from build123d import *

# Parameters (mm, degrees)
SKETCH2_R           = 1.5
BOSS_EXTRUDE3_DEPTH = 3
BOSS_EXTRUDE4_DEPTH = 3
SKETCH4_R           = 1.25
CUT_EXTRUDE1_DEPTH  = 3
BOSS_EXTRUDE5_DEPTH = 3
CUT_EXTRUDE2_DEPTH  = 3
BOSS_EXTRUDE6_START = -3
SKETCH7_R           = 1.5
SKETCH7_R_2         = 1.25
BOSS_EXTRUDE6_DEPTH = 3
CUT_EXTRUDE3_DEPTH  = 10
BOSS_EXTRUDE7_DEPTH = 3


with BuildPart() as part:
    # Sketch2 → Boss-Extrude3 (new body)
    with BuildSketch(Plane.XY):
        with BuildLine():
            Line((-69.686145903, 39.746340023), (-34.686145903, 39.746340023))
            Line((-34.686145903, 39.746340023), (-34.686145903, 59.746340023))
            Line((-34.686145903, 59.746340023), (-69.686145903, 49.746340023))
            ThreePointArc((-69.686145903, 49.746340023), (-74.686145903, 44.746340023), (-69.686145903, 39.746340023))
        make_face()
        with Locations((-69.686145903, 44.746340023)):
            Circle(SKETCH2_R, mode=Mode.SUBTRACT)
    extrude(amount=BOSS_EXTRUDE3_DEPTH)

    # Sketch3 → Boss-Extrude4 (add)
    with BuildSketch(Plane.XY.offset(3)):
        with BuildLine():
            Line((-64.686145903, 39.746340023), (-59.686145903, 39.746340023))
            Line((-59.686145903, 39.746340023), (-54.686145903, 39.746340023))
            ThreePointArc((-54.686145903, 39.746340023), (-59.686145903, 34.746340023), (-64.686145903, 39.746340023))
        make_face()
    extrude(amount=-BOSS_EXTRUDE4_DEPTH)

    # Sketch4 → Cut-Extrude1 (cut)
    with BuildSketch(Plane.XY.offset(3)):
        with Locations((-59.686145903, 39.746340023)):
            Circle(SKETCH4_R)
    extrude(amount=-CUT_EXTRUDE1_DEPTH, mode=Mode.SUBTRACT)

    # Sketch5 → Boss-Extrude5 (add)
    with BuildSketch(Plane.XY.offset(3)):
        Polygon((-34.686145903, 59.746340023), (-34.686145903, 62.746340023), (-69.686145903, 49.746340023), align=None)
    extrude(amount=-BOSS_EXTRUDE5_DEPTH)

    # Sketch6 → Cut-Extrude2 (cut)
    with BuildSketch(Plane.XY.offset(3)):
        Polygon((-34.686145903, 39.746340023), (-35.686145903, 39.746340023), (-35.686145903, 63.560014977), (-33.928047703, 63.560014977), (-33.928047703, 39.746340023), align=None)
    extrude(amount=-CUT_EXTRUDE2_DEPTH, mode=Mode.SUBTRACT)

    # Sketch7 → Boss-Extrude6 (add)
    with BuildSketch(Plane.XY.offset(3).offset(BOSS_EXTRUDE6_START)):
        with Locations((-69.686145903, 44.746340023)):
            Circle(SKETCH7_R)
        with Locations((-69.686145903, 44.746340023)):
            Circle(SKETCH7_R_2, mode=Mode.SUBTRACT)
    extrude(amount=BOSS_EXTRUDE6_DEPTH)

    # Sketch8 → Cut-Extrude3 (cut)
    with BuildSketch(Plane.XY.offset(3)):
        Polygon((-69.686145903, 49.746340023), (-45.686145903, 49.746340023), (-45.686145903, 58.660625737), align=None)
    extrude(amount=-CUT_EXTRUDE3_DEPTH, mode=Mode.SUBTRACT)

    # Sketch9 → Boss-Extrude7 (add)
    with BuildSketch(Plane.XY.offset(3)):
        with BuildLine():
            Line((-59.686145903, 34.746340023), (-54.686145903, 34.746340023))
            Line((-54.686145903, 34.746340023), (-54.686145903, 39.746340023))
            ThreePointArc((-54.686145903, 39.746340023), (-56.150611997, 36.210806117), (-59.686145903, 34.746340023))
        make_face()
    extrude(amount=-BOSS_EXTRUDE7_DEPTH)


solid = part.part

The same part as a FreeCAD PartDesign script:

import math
import FreeCAD as App
import Part
import Sketcher

V = App.Vector


def add_polygon(sketch, points):
    """Adds a closed chain of lines whose ends are joined by coincident constraints."""
    first, n = sketch.GeometryCount, len(points)
    for a, b in zip(points, points[1:] + points[:1]):
        sketch.addGeometry(Part.LineSegment(App.Vector(*a, 0), App.Vector(*b, 0)), False)
    for i in range(n):
        sketch.addConstraint(Sketcher.Constraint("Coincident", first + i, 2, first + (i + 1) % n, 1))

doc = App.newDocument("Part")
body = doc.addObject("PartDesign::Body", "Body")

# Sketch on XY plane
sketch1 = body.newObject("Sketcher::SketchObject", "Sketch")
sketch1.AttachmentSupport = (doc.getObject("XY_Plane"), [""])
sketch1.MapMode = "FlatFace"
sketch1.addGeometry(Part.LineSegment(V(-69.7, 39.7, 0), V(-34.7, 39.7, 0)), False)
sketch1.addGeometry(Part.LineSegment(V(-34.7, 39.7, 0), V(-34.7, 59.7, 0)), False)
sketch1.addGeometry(Part.LineSegment(V(-34.7, 59.7, 0), V(-69.7, 49.7, 0)), False)
sketch1.addGeometry(Part.ArcOfCircle(Part.Circle(V(-69.7, 44.7, 0), V(0, 0, 1), 5), math.radians(90), math.radians(270)), False)
sketch1.addGeometry(Part.Circle(V(-69.7, 44.7, 0), V(0, 0, 1), 1.5), False)
sketch1.addConstraint(Sketcher.Constraint("Coincident", 0, 2, 1, 1))
sketch1.addConstraint(Sketcher.Constraint("Coincident", 1, 2, 2, 1))
sketch1.addConstraint(Sketcher.Constraint("Coincident", 2, 2, 3, 1))
sketch1.addConstraint(Sketcher.Constraint("Tangent", 3, 2, 0, 1))
sketch1.addConstraint(Sketcher.Constraint("Horizontal", 0))
sketch1.addConstraint(Sketcher.Constraint("Vertical", 1))
sketch1.addConstraint(Sketcher.Constraint("Coincident", 4, 3, 3, 3))
sketch1.addConstraint(Sketcher.Constraint("Vertical", 4, 3, 2, 2))
sketch1.addConstraint(Sketcher.Constraint("Diameter", 4, 3.0))
sketch1.addConstraint(Sketcher.Constraint("Radius", 3, 5.0))
sketch1.addConstraint(Sketcher.Constraint("DistanceX", 0, 1, 0, 2, 35.0))
sketch1.addConstraint(Sketcher.Constraint("DistanceY", 1, 1, 1, 2, 20.0))
sketch1.addConstraint(Sketcher.Constraint("DistanceY", -1, 1, 3, 3, 44.74634))
sketch1.addConstraint(Sketcher.Constraint("DistanceX", 3, 3, -1, 1, 69.686146))
pad1 = body.newObject("PartDesign::Pad", "Pad")
pad1.Profile = sketch1
pad1.Length = 3

# Sketch on XY plane
sketch2 = body.newObject("Sketcher::SketchObject", "Sketch001")
sketch2.AttachmentSupport = (doc.getObject("XY_Plane"), [""])
sketch2.MapMode = "FlatFace"
sketch2.AttachmentOffset = App.Placement(V(0, 0, 3), App.Rotation())
sketch2.addGeometry(Part.LineSegment(V(-55, 40, 0), V(-65, 40, 0)), False)
sketch2.addGeometry(Part.ArcOfCircle(Part.Circle(V(-60, 40, 0), V(0, 0, 1), 5), math.radians(180), math.radians(360)), False)
sketch2.addConstraint(Sketcher.Constraint("Coincident", 0, 1, 1, 2))
sketch2.addConstraint(Sketcher.Constraint("Coincident", 1, 1, 0, 2))
sketch2.addConstraint(Sketcher.Constraint("Horizontal", 0))
sketch2.addConstraint(Sketcher.Constraint("Horizontal", 1, 3, 0, 1))
sketch2.addConstraint(Sketcher.Constraint("Radius", 1, 5.0))
sketch2.addConstraint(Sketcher.Constraint("DistanceY", -1, 1, 1, 3, 39.74634))
sketch2.addConstraint(Sketcher.Constraint("DistanceX", 1, 3, -1, 1, 59.686146))
pad2 = body.newObject("PartDesign::Pad", "Pad001")
pad2.Profile = sketch2
pad2.Length = 3
pad2.Reversed = True

# Sketch on XY plane
sketch3 = body.newObject("Sketcher::SketchObject", "Sketch002")
sketch3.AttachmentSupport = (doc.getObject("XY_Plane"), [""])
sketch3.MapMode = "FlatFace"
sketch3.AttachmentOffset = App.Placement(V(0, 0, 3), App.Rotation())
sketch3.addGeometry(Part.Circle(V(-59.7, 39.7, 0), V(0, 0, 1), 1.2), False)
sketch3.addConstraint(Sketcher.Constraint("Diameter", 0, 2.5))
sketch3.addConstraint(Sketcher.Constraint("DistanceY", -1, 1, 0, 3, 39.74634))
sketch3.addConstraint(Sketcher.Constraint("DistanceX", 0, 3, -1, 1, 59.686146))
pocket1 = body.newObject("PartDesign::Pocket", "Pocket")
pocket1.Profile = sketch3
pocket1.Length = 3

# Sketch on XY plane
sketch4 = body.newObject("Sketcher::SketchObject", "Sketch003")
sketch4.AttachmentSupport = (doc.getObject("XY_Plane"), [""])
sketch4.MapMode = "FlatFace"
sketch4.AttachmentOffset = App.Placement(V(0, 0, 3), App.Rotation())
add_polygon(sketch4, [(-34.7, 59.7), (-34.7, 62.7), (-69.7, 49.7)])  # lines 0-2
sketch4.addConstraint(Sketcher.Constraint("Vertical", 0))
sketch4.addConstraint(Sketcher.Constraint("DistanceY", 0, 1, 0, 2, 3.0))
sketch4.addConstraint(Sketcher.Constraint("DistanceX", 1, 2, 0, 2, 35.0))
sketch4.addConstraint(Sketcher.Constraint("DistanceY", 1, 2, 0, 2, 13.0))
sketch4.addConstraint(Sketcher.Constraint("DistanceY", -1, 1, 0, 2, 62.74634))
sketch4.addConstraint(Sketcher.Constraint("DistanceX", 0, 2, -1, 1, 34.686146))
pad3 = body.newObject("PartDesign::Pad", "Pad002")
pad3.Profile = sketch4
pad3.Length = 3
pad3.Reversed = True

# Sketch on XY plane
sketch5 = body.newObject("Sketcher::SketchObject", "Sketch004")
sketch5.AttachmentSupport = (doc.getObject("XY_Plane"), [""])
sketch5.MapMode = "FlatFace"
sketch5.AttachmentOffset = App.Placement(V(0, 0, 3), App.Rotation())
add_polygon(sketch5, [(-35.7, 39.7), (-33.9, 39.7), (-33.9, 63.6), (-35.7, 63.6)])  # lines 0-3
sketch5.addConstraint(Sketcher.Constraint("Horizontal", 0))
sketch5.addConstraint(Sketcher.Constraint("Vertical", 1))
sketch5.addConstraint(Sketcher.Constraint("Horizontal", 2))
sketch5.addConstraint(Sketcher.Constraint("Vertical", 3))
sketch5.addConstraint(Sketcher.Constraint("DistanceX", 0, 1, 0, 2, 1.758098))
sketch5.addConstraint(Sketcher.Constraint("DistanceY", 1, 1, 1, 2, 23.813675))
sketch5.addConstraint(Sketcher.Constraint("DistanceY", -1, 1, 0, 2, 39.74634))
sketch5.addConstraint(Sketcher.Constraint("DistanceX", 0, 2, -1, 1, 33.928048))
pocket2 = body.newObject("PartDesign::Pocket", "Pocket001")
pocket2.Profile = sketch5
pocket2.Length = 3

# Sketch on XY plane
sketch6 = body.newObject("Sketcher::SketchObject", "Sketch005")
sketch6.AttachmentSupport = (doc.getObject("XY_Plane"), [""])
sketch6.MapMode = "FlatFace"
sketch6.addGeometry(Part.Circle(V(-69.7, 44.7, 0), V(0, 0, 1), 1.5), False)
sketch6.addGeometry(Part.Circle(V(-69.7, 44.7, 0), V(0, 0, 1), 1.2), False)
sketch6.addConstraint(Sketcher.Constraint("Coincident", 1, 3, 0, 3))
sketch6.addConstraint(Sketcher.Constraint("Diameter", 0, 3.0))
sketch6.addConstraint(Sketcher.Constraint("Diameter", 1, 2.5))
sketch6.addConstraint(Sketcher.Constraint("DistanceY", -1, 1, 0, 3, 44.74634))
sketch6.addConstraint(Sketcher.Constraint("DistanceX", 0, 3, -1, 1, 69.686146))
pad4 = body.newObject("PartDesign::Pad", "Pad003")
pad4.Profile = sketch6
pad4.Length = 3

# Sketch on XY plane
sketch7 = body.newObject("Sketcher::SketchObject", "Sketch006")
sketch7.AttachmentSupport = (doc.getObject("XY_Plane"), [""])
sketch7.MapMode = "FlatFace"
sketch7.AttachmentOffset = App.Placement(V(0, 0, 3), App.Rotation())
add_polygon(sketch7, [(-70, 50), (-46, 50), (-46, 59)])  # lines 0-2
sketch7.addConstraint(Sketcher.Constraint("Horizontal", 0))
sketch7.addConstraint(Sketcher.Constraint("Vertical", 1))
sketch7.addConstraint(Sketcher.Constraint("DistanceX", 0, 1, 0, 2, 24.0))
sketch7.addConstraint(Sketcher.Constraint("Distance", 2, 25.602041))
sketch7.addConstraint(Sketcher.Constraint("DistanceY", -1, 1, 0, 2, 49.74634))
sketch7.addConstraint(Sketcher.Constraint("DistanceX", 0, 2, -1, 1, 45.686146))
pocket3 = body.newObject("PartDesign::Pocket", "Pocket002")
pocket3.Profile = sketch7
pocket3.Length = 10

# Sketch on XY plane
sketch8 = body.newObject("Sketcher::SketchObject", "Sketch007")
sketch8.AttachmentSupport = (doc.getObject("XY_Plane"), [""])
sketch8.MapMode = "FlatFace"
sketch8.AttachmentOffset = App.Placement(V(0, 0, 3), App.Rotation())
sketch8.addGeometry(Part.LineSegment(V(-60, 35, 0), V(-55, 35, 0)), False)
sketch8.addGeometry(Part.LineSegment(V(-55, 35, 0), V(-55, 40, 0)), False)
sketch8.addGeometry(Part.ArcOfCircle(Part.Circle(V(-60, 40, 0), V(0, 0, 1), 5), math.radians(-90), math.radians(0)), False)
sketch8.addConstraint(Sketcher.Constraint("Coincident", 0, 2, 1, 1))
sketch8.addConstraint(Sketcher.Constraint("Tangent", 1, 2, 2, 2))
sketch8.addConstraint(Sketcher.Constraint("Tangent", 2, 1, 0, 1))
sketch8.addConstraint(Sketcher.Constraint("Horizontal", 0))
sketch8.addConstraint(Sketcher.Constraint("Vertical", 1))
sketch8.addConstraint(Sketcher.Constraint("Radius", 2, 5.0))
sketch8.addConstraint(Sketcher.Constraint("DistanceY", -1, 1, 2, 3, 39.74634))
sketch8.addConstraint(Sketcher.Constraint("DistanceX", 2, 3, -1, 1, 59.686146))
pad5 = body.newObject("PartDesign::Pad", "Pad004")
pad5.Profile = sketch8
pad5.Length = 3
pad5.Reversed = True

doc.recompute()
